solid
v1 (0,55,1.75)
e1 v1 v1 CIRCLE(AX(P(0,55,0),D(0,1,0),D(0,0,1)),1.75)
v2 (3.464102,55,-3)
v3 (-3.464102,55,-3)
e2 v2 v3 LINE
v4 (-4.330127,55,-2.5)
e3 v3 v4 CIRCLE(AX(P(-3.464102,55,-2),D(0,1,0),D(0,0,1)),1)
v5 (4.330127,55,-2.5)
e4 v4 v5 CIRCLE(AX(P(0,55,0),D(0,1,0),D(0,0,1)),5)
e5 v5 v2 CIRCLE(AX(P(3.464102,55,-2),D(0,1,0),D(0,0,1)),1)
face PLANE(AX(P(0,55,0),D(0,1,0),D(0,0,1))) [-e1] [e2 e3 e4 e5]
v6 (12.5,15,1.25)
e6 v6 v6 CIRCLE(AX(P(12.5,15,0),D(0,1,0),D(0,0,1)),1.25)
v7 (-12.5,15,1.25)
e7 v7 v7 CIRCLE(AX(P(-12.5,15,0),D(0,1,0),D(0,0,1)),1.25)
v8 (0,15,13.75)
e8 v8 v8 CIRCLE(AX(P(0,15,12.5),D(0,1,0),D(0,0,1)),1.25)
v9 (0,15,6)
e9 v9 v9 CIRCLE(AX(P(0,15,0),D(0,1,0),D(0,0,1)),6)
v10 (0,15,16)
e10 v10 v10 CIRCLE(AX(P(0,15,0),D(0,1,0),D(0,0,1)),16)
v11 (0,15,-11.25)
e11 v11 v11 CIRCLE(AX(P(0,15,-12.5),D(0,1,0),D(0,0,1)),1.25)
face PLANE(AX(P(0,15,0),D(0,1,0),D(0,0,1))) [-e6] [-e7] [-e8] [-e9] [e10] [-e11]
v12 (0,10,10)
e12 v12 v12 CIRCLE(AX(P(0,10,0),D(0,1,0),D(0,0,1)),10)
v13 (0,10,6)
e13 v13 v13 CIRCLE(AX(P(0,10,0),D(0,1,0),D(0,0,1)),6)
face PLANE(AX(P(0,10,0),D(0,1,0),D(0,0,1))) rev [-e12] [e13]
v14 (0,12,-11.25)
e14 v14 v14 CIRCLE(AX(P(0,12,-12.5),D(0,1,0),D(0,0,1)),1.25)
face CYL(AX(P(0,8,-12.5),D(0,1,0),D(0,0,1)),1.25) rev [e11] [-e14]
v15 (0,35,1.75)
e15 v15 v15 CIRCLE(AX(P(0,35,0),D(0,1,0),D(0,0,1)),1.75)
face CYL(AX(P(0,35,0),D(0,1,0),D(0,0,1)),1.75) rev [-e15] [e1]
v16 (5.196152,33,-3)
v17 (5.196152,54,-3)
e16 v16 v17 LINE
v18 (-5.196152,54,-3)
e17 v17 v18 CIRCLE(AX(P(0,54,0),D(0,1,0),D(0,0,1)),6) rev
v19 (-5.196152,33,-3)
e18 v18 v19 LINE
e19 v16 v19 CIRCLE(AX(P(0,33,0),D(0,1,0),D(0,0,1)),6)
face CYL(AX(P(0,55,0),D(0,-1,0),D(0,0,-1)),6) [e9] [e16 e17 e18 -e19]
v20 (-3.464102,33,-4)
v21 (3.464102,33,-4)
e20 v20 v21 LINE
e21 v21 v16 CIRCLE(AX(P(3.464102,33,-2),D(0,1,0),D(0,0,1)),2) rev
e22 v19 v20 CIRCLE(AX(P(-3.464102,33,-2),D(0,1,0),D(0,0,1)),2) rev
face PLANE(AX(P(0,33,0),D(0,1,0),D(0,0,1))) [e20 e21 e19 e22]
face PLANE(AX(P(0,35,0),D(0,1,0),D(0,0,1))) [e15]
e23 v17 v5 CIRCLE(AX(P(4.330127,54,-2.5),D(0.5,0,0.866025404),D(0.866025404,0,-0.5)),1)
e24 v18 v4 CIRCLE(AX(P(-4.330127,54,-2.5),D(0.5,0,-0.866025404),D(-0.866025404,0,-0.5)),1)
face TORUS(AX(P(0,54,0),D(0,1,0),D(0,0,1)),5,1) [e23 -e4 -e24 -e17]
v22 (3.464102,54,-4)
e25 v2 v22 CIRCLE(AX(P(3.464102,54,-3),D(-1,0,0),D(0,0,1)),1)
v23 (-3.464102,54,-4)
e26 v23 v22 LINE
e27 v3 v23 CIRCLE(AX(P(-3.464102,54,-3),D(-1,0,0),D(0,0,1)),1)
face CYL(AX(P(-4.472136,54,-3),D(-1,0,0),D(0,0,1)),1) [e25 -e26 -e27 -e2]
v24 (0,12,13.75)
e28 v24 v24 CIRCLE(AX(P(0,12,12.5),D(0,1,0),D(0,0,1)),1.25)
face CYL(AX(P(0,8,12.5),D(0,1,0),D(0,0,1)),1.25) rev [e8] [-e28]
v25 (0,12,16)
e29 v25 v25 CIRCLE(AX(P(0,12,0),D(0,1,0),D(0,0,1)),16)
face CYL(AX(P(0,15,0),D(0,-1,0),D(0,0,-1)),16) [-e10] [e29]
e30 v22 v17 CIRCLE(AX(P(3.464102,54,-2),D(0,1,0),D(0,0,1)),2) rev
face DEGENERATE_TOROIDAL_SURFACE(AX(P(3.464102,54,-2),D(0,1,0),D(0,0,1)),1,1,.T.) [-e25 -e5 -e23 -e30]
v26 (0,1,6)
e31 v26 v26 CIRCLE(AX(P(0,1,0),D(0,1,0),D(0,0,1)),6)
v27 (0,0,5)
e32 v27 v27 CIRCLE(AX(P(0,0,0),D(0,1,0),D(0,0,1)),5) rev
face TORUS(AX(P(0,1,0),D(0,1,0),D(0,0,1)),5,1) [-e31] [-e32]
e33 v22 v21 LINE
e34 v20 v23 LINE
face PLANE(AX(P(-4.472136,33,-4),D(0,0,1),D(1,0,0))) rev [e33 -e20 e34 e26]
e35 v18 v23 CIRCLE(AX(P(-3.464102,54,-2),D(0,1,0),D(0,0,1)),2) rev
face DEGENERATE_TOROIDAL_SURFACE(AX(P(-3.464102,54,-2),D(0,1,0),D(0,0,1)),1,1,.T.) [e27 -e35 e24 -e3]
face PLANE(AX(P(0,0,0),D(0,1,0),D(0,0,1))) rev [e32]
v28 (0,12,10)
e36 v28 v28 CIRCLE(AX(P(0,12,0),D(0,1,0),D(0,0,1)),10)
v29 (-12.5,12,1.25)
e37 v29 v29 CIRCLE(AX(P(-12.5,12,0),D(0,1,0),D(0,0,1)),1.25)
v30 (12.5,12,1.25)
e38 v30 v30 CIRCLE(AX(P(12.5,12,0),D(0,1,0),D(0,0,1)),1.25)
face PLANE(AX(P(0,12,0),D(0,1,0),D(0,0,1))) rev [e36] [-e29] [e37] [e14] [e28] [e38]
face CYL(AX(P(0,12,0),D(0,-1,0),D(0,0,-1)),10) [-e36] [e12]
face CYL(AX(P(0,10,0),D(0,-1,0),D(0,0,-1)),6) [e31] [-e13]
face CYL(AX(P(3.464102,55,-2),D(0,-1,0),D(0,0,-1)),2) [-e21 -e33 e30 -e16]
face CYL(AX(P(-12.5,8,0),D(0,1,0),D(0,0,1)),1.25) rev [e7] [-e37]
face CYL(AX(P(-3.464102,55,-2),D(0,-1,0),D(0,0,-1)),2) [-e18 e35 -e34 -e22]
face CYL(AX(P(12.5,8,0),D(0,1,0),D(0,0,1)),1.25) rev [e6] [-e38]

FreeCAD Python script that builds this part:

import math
import FreeCAD as App
import Part
import Sketcher
from FreeCAD import Vector
Q = App.Units.Quantity


def edges_at(feature, points):
    """Names of the edges that pass closest to the given points."""
    edges = feature.Shape.Edges
    near = lambda p: min(range(len(edges)), key=lambda i: edges[i].distToShape(Part.Vertex(*p))[0])
    return sorted({f"Edge{near(p) + 1}" for p in points})

doc = App.newDocument("Part")
params = doc.addObject("Spreadsheet::Sheet", "Params")
for row, (alias, value) in enumerate([
    ("sketch1_diameter", "12 mm"),
    ("pad1_length", "10 mm"),
    ("sketch2_diameter", "20 mm"),
    ("pad2_length", "2 mm"),
    ("sketch3_diameter", "32 mm"),
    ("pad3_length", "3 mm"),
    ("sketch4_diameter", "12 mm"),
    ("pad4_length", "40 mm"),
    ("fillet_radius", "1 mm"),
    ("sketch5_radius", "6 mm"),
    ("pocket1_length", "22 mm"),
    ("fillet2_radius", "2 mm"),
    ("fillet3_radius", "1 mm"),
    ("sketch6_diameter", "3.5 mm"),
    ("pocket2_length", "20 mm"),
    ("sketch7_diameter", "2.5 mm"),
    ("pocket3_length", "7 mm"),
], start=1):
    params.set(f"A{row}", alias)
    params.set(f"B{row}", "=" + value)
    params.setAlias(f"B{row}", alias)

body = doc.addObject("PartDesign::Body", "Body")

# Sketch on XZ plane
sketch1 = body.newObject("Sketcher::SketchObject", "Sketch")
sketch1.AttachmentSupport = (doc.getObject("XZ_Plane"), [""])
sketch1.MapMode = "FlatFace"
sketch1.addGeometry(Part.Circle(Vector(0, 0, 0), Vector(0, 0, 1), 6), False)
sketch1.addConstraint(Sketcher.Constraint("Coincident", 0, 3, -1, 1))
sketch1.addConstraint(Sketcher.Constraint("Diameter", 0, Q("12 mm")))
sketch1.setExpression("Constraints[1]", "Params.sketch1_diameter")
pad1 = body.newObject("PartDesign::Pad", "Pad")
pad1.Profile = sketch1
pad1.setExpression("Length", "Params.pad1_length")
pad1.Reversed = True

# Sketch on XZ plane
sketch2 = body.newObject("Sketcher::SketchObject", "Sketch001")
sketch2.AttachmentSupport = (doc.getObject("XZ_Plane"), [""])
sketch2.MapMode = "FlatFace"
sketch2.AttachmentOffset = App.Placement(Vector(0, 0, -10), App.Rotation())
sketch2.addGeometry(Part.Circle(Vector(0, 0, 0), Vector(0, 0, 1), 10), False)
sketch2.addConstraint(Sketcher.Constraint("Coincident", 0, 3, -1, 1))
sketch2.addConstraint(Sketcher.Constraint("Diameter", 0, Q("20 mm")))
sketch2.setExpression("Constraints[1]", "Params.sketch2_diameter")
pad2 = body.newObject("PartDesign::Pad", "Pad001")
pad2.Profile = sketch2
pad2.setExpression("Length", "Params.pad2_length")
pad2.Reversed = True

# Sketch on XZ plane
sketch3 = body.newObject("Sketcher::SketchObject", "Sketch002")
sketch3.AttachmentSupport = (doc.getObject("XZ_Plane"), [""])
sketch3.MapMode = "FlatFace"
sketch3.AttachmentOffset = App.Placement(Vector(0, 0, -12), App.Rotation())
sketch3.addGeometry(Part.Circle(Vector(0, 0, 0), Vector(0, 0, 1), 16), False)
sketch3.addConstraint(Sketcher.Constraint("Coincident", 0, 3, -1, 1))
sketch3.addConstraint(Sketcher.Constraint("Diameter", 0, Q("32 mm")))
sketch3.setExpression("Constraints[1]", "Params.sketch3_diameter")
pad3 = body.newObject("PartDesign::Pad", "Pad002")
pad3.Profile = sketch3
pad3.setExpression("Length", "Params.pad3_length")
pad3.Reversed = True

# Sketch on XZ plane
sketch4 = body.newObject("Sketcher::SketchObject", "Sketch003")
sketch4.AttachmentSupport = (doc.getObject("XZ_Plane"), [""])
sketch4.MapMode = "FlatFace"
sketch4.AttachmentOffset = App.Placement(Vector(0, 0, -15), App.Rotation())
sketch4.addGeometry(Part.Circle(Vector(0, 0, 0), Vector(0, 0, 1), 6), False)
sketch4.addConstraint(Sketcher.Constraint("Coincident", 0, 3, -1, 1))
sketch4.addConstraint(Sketcher.Constraint("Diameter", 0, Q("12 mm")))
sketch4.setExpression("Constraints[1]", "Params.sketch4_diameter")
pad4 = body.newObject("PartDesign::Pad", "Pad003")
pad4.Profile = sketch4
pad4.setExpression("Length", "Params.pad4_length")
pad4.Reversed = True
doc.recompute()

fillet = body.newObject("PartDesign::Fillet", "Fillet")
fillet.Base = (pad4, edges_at(pad4, [(0, 0, -6)]))
fillet.setExpression("Radius", "Params.fillet_radius")

# Sketch on XZ plane
sketch5 = body.newObject("Sketcher::SketchObject", "Sketch004")
sketch5.AttachmentSupport = (doc.getObject("XZ_Plane"), [""])
sketch5.MapMode = "FlatFace"
sketch5.AttachmentOffset = App.Placement(Vector(0, 0, -33), App.Rotation())
sketch5.addGeometry(Part.LineSegment(Vector(-4, -4, 0), Vector(4, -4, 0)), False)
sketch5.addGeometry(Part.ArcOfCircle(Part.Circle(Vector(0, 0, 0), Vector(0, 0, 1), 6), math.radians(-138), math.radians(-42)), False)
sketch5.addConstraint(Sketcher.Constraint("Coincident", 0, 1, 1, 1))
sketch5.addConstraint(Sketcher.Constraint("Coincident", 1, 2, 0, 2))
sketch5.addConstraint(Sketcher.Constraint("Horizontal", 0))
sketch5.addConstraint(Sketcher.Constraint("Coincident", 1, 3, -1, 1))
sketch5.addConstraint(Sketcher.Constraint("Radius", 1, Q("6 mm")))
sketch5.addConstraint(Sketcher.Constraint("DistanceY", 0, 1, -1, 1, Q("4 mm")))
sketch5.setExpression("Constraints[4]", "Params.sketch5_radius")
pocket1 = body.newObject("PartDesign::Pocket", "Pocket")
pocket1.Profile = sketch5
pocket1.setExpression("Length", "Params.pocket1_length")
doc.recompute()

fillet2 = body.newObject("PartDesign::Fillet", "Fillet001")
fillet2.Base = (pocket1, edges_at(pocket1, [(-4.472, 44, -4), (4.472, 44, -4)]))
fillet2.setExpression("Radius", "Params.fillet2_radius")
doc.recompute()

fillet3 = body.newObject("PartDesign::Fillet", "Fillet002")
fillet3.Base = (fillet2, edges_at(fillet2, [
    (5.196, 55, 3),
    (0, 55, -4),
    (-4.464, 55, -3.732),
    (4.464, 55, -3.732),
]))
fillet3.setExpression("Radius", "Params.fillet3_radius")

# Sketch on XZ plane
sketch6 = body.newObject("Sketcher::SketchObject", "Sketch005")
sketch6.AttachmentSupport = (doc.getObject("XZ_Plane"), [""])
sketch6.MapMode = "FlatFace"
sketch6.AttachmentOffset = App.Placement(Vector(0, 0, -55), App.Rotation())
sketch6.addGeometry(Part.Circle(Vector(0, 0, 0), Vector(0, 0, 1), 1.8), False)
sketch6.addConstraint(Sketcher.Constraint("Coincident", 0, 3, -1, 1))
sketch6.addConstraint(Sketcher.Constraint("Diameter", 0, Q("3.5 mm")))
sketch6.setExpression("Constraints[1]", "Params.sketch6_diameter")
pocket2 = body.newObject("PartDesign::Pocket", "Pocket001")
pocket2.Profile = sketch6
pocket2.setExpression("Length", "Params.pocket2_length")
pocket2.Reversed = True

# Sketch on XZ plane
sketch7 = body.newObject("Sketcher::SketchObject", "Sketch006")
sketch7.AttachmentSupport = (doc.getObject("XZ_Plane"), [""])
sketch7.MapMode = "FlatFace"
sketch7.AttachmentOffset = App.Placement(Vector(0, 0, -15), App.Rotation())
sketch7.addGeometry(Part.Circle(Vector(0, -12.5, 0), Vector(0, 0, 1), 1.2), False)
sketch7.addGeometry(Part.Circle(Vector(12.5, 0, 0), Vector(0, 0, 1), 1.2), False)
sketch7.addGeometry(Part.Circle(Vector(0, 12.5, 0), Vector(0, 0, 1), 1.2), False)
sketch7.addGeometry(Part.Circle(Vector(-12.5, 0, 0), Vector(0, 0, 1), 1.2), False)
sketch7.addConstraint(Sketcher.Constraint("Equal", 0, 1))
sketch7.addConstraint(Sketcher.Constraint("Equal", 1, 2))
sketch7.addConstraint(Sketcher.Constraint("Equal", 2, 3))
sketch7.addConstraint(Sketcher.Constraint("Symmetric", 0, 3, 2, 3, -1, 1))
sketch7.addConstraint(Sketcher.Constraint("Symmetric", 1, 3, 3, 3, -1, 1))
sketch7.addConstraint(Sketcher.Constraint("PointOnObject", 0, 3, -2))
sketch7.addConstraint(Sketcher.Constraint("PointOnObject", 1, 3, -1))
sketch7.addConstraint(Sketcher.Constraint("Diameter", 0, Q("2.5 mm")))
sketch7.addConstraint(Sketcher.Constraint("DistanceY", 0, 3, 2, 3, Q("25 mm")))
sketch7.addConstraint(Sketcher.Constraint("DistanceX", 3, 3, 1, 3, Q("25 mm")))
sketch7.setExpression("Constraints[7]", "Params.sketch7_diameter")
pocket3 = body.newObject("PartDesign::Pocket", "Pocket002")
pocket3.Profile = sketch7
pocket3.setExpression("Length", "Params.pocket3_length")
pocket3.Reversed = True

doc.recompute()
